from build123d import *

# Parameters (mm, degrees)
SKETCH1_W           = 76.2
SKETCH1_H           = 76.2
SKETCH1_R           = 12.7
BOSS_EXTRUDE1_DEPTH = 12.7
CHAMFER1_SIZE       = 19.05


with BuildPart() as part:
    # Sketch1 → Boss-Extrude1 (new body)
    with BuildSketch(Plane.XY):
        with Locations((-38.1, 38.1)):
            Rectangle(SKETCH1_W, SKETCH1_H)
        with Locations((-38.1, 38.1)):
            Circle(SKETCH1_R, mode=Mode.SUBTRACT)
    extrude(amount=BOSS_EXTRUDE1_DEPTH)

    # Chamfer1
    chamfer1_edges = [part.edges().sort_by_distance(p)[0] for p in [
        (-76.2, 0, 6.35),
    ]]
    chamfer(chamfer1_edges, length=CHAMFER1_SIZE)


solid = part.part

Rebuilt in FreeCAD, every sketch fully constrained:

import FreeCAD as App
import Part
import Sketcher
from FreeCAD import Vector
Q = App.Units.Quantity


def edges_at(feature, points):
    """Names of the edges that pass closest to the given points."""
    edges = feature.Shape.Edges
    near = lambda p: min(range(len(edges)), key=lambda i: edges[i].distToShape(Part.Vertex(*p))[0])
    return sorted({f"Edge{near(p) + 1}" for p in points})


def add_polygon(sketch, points):
    """Adds a closed chain of lines whose ends are joined by coincident constraints."""
    first, n = sketch.GeometryCount, len(points)
    for a, b in zip(points, points[1:] + points[:1]):
        sketch.addGeometry(Part.LineSegment(App.Vector(*a, 0), App.Vector(*b, 0)), False)
    for i in range(n):
        sketch.addConstraint(Sketcher.Constraint("Coincident", first + i, 2, first + (i + 1) % n, 1))

doc = App.newDocument("Part")
params = doc.addObject("Spreadsheet::Sheet", "Params")
for row, (alias, value) in enumerate([
    ("sketch1_diameter", "1 in"),
    ("sketch1_width", "3 in"),
    ("pad1_length", "0.5 in"),
    ("chamfer_size", "0.75 in"),
], start=1):
    params.set(f"A{row}", alias)
    params.set(f"B{row}", "=" + value)
    params.setAlias(f"B{row}", alias)

body = doc.addObject("PartDesign::Body", "Body")

# Sketch on XY plane
sketch1 = body.newObject("Sketcher::SketchObject", "Sketch")
sketch1.AttachmentSupport = (doc.getObject("XY_Plane"), [""])
sketch1.MapMode = "FlatFace"
add_polygon(sketch1, [(-76, 76), (-76, 0), (0, 0), (0, 76)])  # lines 0-3
sketch1.addGeometry(Part.Circle(Vector(-38, 38, 0), Vector(0, 0, 1), 13), False)  # 4
sketch1.addConstraint([
    Sketcher.Constraint("Vertical", 0),
    Sketcher.Constraint("Horizontal", 1),
    Sketcher.Constraint("Vertical", 2),
    Sketcher.Constraint("Horizontal", 3),
    Sketcher.Constraint("Coincident", 1, 2, -1, 1),
    Sketcher.Constraint("Equal", 3, 0),
    Sketcher.Constraint("Diameter", 4, Q("1 in")),
    Sketcher.Constraint("DistanceX", 1, 1, 1, 2, Q("3 in")),
    Sketcher.Constraint("DistanceX", 4, 3, -1, 1, Q("1.5 in")),
    Sketcher.Constraint("DistanceY", -1, 1, 4, 3, Q("1.5 in")),
])
sketch1.setExpression("Constraints[10]", "Params.sketch1_diameter")
sketch1.setExpression("Constraints[11]", "Params.sketch1_width")
pad1 = body.newObject("PartDesign::Pad", "Pad")
pad1.Profile = sketch1
pad1.setExpression("Length", "Params.pad1_length")
doc.recompute()

chamfer = body.newObject("PartDesign::Chamfer", "Chamfer")
chamfer.Base = (pad1, edges_at(pad1, [(-76.2, 0, 6.35)]))
chamfer.setExpression("Size", "Params.chamfer_size")

doc.recompute()
